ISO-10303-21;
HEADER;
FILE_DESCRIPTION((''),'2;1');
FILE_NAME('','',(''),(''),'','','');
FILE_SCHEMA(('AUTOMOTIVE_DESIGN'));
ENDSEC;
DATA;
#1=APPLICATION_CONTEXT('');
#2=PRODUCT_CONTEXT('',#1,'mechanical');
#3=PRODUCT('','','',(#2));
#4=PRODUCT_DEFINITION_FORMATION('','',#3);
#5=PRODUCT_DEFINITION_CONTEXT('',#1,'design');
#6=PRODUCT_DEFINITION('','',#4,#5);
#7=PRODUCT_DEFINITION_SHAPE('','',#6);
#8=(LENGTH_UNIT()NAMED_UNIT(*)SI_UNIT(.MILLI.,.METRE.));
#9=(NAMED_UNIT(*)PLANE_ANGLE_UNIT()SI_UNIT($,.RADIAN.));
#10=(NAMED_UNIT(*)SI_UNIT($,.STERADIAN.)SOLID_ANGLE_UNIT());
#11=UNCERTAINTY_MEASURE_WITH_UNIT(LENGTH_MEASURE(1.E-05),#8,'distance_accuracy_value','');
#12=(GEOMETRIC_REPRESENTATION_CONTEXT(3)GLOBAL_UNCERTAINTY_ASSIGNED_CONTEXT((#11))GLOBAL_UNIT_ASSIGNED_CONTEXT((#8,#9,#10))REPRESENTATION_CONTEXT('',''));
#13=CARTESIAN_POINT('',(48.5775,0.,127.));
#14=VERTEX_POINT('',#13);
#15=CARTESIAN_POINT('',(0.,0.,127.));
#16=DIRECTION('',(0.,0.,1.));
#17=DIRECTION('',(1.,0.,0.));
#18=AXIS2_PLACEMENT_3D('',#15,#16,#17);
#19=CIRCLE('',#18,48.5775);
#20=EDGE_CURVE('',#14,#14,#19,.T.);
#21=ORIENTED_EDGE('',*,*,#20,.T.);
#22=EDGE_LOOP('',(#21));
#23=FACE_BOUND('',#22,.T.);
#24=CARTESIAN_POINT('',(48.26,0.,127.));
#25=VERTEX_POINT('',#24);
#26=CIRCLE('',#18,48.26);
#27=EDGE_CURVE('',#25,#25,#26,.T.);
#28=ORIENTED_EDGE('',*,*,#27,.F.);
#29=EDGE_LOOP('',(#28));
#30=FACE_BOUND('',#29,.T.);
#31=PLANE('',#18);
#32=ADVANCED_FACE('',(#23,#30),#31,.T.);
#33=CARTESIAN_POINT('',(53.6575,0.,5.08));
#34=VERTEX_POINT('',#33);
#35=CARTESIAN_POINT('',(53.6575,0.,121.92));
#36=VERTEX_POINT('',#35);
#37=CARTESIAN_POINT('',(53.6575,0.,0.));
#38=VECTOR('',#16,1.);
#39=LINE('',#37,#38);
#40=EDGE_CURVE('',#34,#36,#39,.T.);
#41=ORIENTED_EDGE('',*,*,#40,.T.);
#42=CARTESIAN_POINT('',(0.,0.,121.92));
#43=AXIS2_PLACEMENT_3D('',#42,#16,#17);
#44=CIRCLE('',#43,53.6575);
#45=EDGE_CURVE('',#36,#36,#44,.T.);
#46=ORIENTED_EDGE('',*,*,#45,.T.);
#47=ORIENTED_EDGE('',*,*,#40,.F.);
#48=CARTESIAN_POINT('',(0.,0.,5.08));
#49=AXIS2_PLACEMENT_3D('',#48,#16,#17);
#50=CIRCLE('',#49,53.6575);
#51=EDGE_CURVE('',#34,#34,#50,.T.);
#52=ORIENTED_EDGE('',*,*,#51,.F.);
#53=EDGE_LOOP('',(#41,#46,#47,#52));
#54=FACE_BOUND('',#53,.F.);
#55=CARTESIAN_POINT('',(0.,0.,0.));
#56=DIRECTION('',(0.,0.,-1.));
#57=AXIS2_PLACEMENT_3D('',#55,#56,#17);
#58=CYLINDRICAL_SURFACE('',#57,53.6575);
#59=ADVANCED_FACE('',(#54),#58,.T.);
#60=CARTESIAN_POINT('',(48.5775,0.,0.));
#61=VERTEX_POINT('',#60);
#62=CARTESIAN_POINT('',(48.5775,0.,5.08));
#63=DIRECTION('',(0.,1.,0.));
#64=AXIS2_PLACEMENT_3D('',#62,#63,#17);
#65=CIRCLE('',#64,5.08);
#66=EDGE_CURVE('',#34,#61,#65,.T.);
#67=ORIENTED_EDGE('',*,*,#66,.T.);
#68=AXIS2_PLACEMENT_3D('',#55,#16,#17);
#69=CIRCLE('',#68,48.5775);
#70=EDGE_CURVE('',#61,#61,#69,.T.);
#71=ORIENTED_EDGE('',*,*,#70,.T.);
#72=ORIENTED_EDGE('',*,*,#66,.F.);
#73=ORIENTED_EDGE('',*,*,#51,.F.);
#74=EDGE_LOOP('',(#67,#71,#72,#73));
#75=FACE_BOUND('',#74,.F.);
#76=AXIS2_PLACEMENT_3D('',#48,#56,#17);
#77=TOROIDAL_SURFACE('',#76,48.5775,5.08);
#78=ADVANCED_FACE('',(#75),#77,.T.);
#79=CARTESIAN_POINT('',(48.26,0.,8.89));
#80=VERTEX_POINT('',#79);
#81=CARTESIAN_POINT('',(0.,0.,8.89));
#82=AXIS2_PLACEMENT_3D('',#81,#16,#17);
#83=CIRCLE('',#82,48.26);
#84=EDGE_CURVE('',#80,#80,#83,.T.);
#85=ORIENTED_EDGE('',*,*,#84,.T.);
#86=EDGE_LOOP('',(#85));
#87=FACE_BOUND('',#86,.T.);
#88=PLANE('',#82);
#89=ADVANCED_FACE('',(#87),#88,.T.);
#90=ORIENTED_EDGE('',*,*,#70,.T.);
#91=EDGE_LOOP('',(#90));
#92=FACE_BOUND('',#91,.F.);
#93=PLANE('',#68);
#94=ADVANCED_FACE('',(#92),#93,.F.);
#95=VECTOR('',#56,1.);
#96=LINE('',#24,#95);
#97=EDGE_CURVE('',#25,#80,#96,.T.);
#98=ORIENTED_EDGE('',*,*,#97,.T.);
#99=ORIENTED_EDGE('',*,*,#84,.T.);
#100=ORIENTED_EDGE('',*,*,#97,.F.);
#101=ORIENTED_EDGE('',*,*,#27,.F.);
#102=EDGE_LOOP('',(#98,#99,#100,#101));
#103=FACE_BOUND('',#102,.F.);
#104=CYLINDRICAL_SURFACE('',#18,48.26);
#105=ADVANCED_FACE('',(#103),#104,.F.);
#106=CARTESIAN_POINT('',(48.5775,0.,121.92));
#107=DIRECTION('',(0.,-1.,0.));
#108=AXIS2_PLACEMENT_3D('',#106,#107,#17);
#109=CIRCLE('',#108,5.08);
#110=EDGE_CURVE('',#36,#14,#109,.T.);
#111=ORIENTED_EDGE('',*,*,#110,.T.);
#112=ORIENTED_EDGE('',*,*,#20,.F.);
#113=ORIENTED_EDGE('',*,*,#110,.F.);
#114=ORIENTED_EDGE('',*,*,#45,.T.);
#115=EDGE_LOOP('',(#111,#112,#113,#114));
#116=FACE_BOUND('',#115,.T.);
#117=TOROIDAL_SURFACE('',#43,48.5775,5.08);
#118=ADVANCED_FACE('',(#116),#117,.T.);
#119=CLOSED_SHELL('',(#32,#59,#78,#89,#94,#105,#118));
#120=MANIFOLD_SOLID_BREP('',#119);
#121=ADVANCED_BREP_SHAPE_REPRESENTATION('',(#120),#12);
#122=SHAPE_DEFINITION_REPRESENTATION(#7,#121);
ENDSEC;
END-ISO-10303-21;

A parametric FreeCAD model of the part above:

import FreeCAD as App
import Part
import Sketcher
from FreeCAD import Vector
Q = App.Units.Quantity


def edges_at(feature, points):
    """Names of the edges that pass closest to the given points."""
    edges = feature.Shape.Edges
    near = lambda p: min(range(len(edges)), key=lambda i: edges[i].distToShape(Part.Vertex(*p))[0])
    return sorted({f"Edge{near(p) + 1}" for p in points})

doc = App.newDocument("Part")
params = doc.addObject("Spreadsheet::Sheet", "Params")
for row, (alias, value) in enumerate([
    ("sketch1_diameter", "4.225 in"),
    ("pad1_length", "5 in"),
    ("sketch2_diameter", "3.8 in"),
    ("pocket1_length", "4.65 in"),
    ("fillet_radius", "0.2 in"),
    ("fillet2_radius", "0.2 in"),
], start=1):
    params.set(f"A{row}", alias)
    params.set(f"B{row}", "=" + value)
    params.setAlias(f"B{row}", alias)

body = doc.addObject("PartDesign::Body", "Body")

# Sketch on XY plane
sketch1 = doc.addObject("Sketcher::SketchObject", "Sketch")
body.addObject(sketch1)
sketch1.AttachmentSupport = (doc.XY_Plane, [""])
sketch1.MapMode = "FlatFace"
sketch1.addGeometry(Part.Circle(Vector(0, 0, 0), Vector(0, 0, 1), 54), False)
sketch1.addConstraint([
    Sketcher.Constraint("Coincident", 0, 3, -1, 1),
    Sketcher.Constraint("Diameter", 0, Q("4.225 in")),
])
sketch1.setExpression("Constraints[1]", "Params.sketch1_diameter")
pad1 = doc.addObject("PartDesign::Pad", "Pad")
body.addObject(pad1)
pad1.Profile = sketch1
pad1.setExpression("Length", "Params.pad1_length")

# Sketch on XY plane
sketch2 = doc.addObject("Sketcher::SketchObject", "Sketch001")
body.addObject(sketch2)
sketch2.AttachmentSupport = (doc.XY_Plane, [""])
sketch2.MapMode = "FlatFace"
sketch2.AttachmentOffset = App.Placement(Vector(0, 0, 5 * 25.4), App.Rotation())
sketch2.addGeometry(Part.Circle(Vector(0, 0, 0), Vector(0, 0, 1), 48), False)
sketch2.addConstraint([
    Sketcher.Constraint("Coincident", 0, 3, -1, 1),
    Sketcher.Constraint("Diameter", 0, Q("3.8 in")),
])
sketch2.setExpression("Constraints[1]", "Params.sketch2_diameter")
pocket1 = doc.addObject("PartDesign::Pocket", "Pocket")
body.addObject(pocket1)
pocket1.Profile = sketch2
pocket1.setExpression("Length", "Params.pocket1_length")
doc.recompute()

fillet = doc.addObject("PartDesign::Fillet", "Fillet")
body.addObject(fillet)
fillet.Base = (pocket1, edges_at(pocket1, [(-53.657, 0, 127)]))
fillet.setExpression("Radius", "Params.fillet_radius")
doc.recompute()

fillet2 = doc.addObject("PartDesign::Fillet", "Fillet001")
body.addObject(fillet2)
fillet2.Base = (fillet, edges_at(fillet, [(-53.657, 0, 0)]))
fillet2.setExpression("Radius", "Params.fillet2_radius")

doc.recompute()
